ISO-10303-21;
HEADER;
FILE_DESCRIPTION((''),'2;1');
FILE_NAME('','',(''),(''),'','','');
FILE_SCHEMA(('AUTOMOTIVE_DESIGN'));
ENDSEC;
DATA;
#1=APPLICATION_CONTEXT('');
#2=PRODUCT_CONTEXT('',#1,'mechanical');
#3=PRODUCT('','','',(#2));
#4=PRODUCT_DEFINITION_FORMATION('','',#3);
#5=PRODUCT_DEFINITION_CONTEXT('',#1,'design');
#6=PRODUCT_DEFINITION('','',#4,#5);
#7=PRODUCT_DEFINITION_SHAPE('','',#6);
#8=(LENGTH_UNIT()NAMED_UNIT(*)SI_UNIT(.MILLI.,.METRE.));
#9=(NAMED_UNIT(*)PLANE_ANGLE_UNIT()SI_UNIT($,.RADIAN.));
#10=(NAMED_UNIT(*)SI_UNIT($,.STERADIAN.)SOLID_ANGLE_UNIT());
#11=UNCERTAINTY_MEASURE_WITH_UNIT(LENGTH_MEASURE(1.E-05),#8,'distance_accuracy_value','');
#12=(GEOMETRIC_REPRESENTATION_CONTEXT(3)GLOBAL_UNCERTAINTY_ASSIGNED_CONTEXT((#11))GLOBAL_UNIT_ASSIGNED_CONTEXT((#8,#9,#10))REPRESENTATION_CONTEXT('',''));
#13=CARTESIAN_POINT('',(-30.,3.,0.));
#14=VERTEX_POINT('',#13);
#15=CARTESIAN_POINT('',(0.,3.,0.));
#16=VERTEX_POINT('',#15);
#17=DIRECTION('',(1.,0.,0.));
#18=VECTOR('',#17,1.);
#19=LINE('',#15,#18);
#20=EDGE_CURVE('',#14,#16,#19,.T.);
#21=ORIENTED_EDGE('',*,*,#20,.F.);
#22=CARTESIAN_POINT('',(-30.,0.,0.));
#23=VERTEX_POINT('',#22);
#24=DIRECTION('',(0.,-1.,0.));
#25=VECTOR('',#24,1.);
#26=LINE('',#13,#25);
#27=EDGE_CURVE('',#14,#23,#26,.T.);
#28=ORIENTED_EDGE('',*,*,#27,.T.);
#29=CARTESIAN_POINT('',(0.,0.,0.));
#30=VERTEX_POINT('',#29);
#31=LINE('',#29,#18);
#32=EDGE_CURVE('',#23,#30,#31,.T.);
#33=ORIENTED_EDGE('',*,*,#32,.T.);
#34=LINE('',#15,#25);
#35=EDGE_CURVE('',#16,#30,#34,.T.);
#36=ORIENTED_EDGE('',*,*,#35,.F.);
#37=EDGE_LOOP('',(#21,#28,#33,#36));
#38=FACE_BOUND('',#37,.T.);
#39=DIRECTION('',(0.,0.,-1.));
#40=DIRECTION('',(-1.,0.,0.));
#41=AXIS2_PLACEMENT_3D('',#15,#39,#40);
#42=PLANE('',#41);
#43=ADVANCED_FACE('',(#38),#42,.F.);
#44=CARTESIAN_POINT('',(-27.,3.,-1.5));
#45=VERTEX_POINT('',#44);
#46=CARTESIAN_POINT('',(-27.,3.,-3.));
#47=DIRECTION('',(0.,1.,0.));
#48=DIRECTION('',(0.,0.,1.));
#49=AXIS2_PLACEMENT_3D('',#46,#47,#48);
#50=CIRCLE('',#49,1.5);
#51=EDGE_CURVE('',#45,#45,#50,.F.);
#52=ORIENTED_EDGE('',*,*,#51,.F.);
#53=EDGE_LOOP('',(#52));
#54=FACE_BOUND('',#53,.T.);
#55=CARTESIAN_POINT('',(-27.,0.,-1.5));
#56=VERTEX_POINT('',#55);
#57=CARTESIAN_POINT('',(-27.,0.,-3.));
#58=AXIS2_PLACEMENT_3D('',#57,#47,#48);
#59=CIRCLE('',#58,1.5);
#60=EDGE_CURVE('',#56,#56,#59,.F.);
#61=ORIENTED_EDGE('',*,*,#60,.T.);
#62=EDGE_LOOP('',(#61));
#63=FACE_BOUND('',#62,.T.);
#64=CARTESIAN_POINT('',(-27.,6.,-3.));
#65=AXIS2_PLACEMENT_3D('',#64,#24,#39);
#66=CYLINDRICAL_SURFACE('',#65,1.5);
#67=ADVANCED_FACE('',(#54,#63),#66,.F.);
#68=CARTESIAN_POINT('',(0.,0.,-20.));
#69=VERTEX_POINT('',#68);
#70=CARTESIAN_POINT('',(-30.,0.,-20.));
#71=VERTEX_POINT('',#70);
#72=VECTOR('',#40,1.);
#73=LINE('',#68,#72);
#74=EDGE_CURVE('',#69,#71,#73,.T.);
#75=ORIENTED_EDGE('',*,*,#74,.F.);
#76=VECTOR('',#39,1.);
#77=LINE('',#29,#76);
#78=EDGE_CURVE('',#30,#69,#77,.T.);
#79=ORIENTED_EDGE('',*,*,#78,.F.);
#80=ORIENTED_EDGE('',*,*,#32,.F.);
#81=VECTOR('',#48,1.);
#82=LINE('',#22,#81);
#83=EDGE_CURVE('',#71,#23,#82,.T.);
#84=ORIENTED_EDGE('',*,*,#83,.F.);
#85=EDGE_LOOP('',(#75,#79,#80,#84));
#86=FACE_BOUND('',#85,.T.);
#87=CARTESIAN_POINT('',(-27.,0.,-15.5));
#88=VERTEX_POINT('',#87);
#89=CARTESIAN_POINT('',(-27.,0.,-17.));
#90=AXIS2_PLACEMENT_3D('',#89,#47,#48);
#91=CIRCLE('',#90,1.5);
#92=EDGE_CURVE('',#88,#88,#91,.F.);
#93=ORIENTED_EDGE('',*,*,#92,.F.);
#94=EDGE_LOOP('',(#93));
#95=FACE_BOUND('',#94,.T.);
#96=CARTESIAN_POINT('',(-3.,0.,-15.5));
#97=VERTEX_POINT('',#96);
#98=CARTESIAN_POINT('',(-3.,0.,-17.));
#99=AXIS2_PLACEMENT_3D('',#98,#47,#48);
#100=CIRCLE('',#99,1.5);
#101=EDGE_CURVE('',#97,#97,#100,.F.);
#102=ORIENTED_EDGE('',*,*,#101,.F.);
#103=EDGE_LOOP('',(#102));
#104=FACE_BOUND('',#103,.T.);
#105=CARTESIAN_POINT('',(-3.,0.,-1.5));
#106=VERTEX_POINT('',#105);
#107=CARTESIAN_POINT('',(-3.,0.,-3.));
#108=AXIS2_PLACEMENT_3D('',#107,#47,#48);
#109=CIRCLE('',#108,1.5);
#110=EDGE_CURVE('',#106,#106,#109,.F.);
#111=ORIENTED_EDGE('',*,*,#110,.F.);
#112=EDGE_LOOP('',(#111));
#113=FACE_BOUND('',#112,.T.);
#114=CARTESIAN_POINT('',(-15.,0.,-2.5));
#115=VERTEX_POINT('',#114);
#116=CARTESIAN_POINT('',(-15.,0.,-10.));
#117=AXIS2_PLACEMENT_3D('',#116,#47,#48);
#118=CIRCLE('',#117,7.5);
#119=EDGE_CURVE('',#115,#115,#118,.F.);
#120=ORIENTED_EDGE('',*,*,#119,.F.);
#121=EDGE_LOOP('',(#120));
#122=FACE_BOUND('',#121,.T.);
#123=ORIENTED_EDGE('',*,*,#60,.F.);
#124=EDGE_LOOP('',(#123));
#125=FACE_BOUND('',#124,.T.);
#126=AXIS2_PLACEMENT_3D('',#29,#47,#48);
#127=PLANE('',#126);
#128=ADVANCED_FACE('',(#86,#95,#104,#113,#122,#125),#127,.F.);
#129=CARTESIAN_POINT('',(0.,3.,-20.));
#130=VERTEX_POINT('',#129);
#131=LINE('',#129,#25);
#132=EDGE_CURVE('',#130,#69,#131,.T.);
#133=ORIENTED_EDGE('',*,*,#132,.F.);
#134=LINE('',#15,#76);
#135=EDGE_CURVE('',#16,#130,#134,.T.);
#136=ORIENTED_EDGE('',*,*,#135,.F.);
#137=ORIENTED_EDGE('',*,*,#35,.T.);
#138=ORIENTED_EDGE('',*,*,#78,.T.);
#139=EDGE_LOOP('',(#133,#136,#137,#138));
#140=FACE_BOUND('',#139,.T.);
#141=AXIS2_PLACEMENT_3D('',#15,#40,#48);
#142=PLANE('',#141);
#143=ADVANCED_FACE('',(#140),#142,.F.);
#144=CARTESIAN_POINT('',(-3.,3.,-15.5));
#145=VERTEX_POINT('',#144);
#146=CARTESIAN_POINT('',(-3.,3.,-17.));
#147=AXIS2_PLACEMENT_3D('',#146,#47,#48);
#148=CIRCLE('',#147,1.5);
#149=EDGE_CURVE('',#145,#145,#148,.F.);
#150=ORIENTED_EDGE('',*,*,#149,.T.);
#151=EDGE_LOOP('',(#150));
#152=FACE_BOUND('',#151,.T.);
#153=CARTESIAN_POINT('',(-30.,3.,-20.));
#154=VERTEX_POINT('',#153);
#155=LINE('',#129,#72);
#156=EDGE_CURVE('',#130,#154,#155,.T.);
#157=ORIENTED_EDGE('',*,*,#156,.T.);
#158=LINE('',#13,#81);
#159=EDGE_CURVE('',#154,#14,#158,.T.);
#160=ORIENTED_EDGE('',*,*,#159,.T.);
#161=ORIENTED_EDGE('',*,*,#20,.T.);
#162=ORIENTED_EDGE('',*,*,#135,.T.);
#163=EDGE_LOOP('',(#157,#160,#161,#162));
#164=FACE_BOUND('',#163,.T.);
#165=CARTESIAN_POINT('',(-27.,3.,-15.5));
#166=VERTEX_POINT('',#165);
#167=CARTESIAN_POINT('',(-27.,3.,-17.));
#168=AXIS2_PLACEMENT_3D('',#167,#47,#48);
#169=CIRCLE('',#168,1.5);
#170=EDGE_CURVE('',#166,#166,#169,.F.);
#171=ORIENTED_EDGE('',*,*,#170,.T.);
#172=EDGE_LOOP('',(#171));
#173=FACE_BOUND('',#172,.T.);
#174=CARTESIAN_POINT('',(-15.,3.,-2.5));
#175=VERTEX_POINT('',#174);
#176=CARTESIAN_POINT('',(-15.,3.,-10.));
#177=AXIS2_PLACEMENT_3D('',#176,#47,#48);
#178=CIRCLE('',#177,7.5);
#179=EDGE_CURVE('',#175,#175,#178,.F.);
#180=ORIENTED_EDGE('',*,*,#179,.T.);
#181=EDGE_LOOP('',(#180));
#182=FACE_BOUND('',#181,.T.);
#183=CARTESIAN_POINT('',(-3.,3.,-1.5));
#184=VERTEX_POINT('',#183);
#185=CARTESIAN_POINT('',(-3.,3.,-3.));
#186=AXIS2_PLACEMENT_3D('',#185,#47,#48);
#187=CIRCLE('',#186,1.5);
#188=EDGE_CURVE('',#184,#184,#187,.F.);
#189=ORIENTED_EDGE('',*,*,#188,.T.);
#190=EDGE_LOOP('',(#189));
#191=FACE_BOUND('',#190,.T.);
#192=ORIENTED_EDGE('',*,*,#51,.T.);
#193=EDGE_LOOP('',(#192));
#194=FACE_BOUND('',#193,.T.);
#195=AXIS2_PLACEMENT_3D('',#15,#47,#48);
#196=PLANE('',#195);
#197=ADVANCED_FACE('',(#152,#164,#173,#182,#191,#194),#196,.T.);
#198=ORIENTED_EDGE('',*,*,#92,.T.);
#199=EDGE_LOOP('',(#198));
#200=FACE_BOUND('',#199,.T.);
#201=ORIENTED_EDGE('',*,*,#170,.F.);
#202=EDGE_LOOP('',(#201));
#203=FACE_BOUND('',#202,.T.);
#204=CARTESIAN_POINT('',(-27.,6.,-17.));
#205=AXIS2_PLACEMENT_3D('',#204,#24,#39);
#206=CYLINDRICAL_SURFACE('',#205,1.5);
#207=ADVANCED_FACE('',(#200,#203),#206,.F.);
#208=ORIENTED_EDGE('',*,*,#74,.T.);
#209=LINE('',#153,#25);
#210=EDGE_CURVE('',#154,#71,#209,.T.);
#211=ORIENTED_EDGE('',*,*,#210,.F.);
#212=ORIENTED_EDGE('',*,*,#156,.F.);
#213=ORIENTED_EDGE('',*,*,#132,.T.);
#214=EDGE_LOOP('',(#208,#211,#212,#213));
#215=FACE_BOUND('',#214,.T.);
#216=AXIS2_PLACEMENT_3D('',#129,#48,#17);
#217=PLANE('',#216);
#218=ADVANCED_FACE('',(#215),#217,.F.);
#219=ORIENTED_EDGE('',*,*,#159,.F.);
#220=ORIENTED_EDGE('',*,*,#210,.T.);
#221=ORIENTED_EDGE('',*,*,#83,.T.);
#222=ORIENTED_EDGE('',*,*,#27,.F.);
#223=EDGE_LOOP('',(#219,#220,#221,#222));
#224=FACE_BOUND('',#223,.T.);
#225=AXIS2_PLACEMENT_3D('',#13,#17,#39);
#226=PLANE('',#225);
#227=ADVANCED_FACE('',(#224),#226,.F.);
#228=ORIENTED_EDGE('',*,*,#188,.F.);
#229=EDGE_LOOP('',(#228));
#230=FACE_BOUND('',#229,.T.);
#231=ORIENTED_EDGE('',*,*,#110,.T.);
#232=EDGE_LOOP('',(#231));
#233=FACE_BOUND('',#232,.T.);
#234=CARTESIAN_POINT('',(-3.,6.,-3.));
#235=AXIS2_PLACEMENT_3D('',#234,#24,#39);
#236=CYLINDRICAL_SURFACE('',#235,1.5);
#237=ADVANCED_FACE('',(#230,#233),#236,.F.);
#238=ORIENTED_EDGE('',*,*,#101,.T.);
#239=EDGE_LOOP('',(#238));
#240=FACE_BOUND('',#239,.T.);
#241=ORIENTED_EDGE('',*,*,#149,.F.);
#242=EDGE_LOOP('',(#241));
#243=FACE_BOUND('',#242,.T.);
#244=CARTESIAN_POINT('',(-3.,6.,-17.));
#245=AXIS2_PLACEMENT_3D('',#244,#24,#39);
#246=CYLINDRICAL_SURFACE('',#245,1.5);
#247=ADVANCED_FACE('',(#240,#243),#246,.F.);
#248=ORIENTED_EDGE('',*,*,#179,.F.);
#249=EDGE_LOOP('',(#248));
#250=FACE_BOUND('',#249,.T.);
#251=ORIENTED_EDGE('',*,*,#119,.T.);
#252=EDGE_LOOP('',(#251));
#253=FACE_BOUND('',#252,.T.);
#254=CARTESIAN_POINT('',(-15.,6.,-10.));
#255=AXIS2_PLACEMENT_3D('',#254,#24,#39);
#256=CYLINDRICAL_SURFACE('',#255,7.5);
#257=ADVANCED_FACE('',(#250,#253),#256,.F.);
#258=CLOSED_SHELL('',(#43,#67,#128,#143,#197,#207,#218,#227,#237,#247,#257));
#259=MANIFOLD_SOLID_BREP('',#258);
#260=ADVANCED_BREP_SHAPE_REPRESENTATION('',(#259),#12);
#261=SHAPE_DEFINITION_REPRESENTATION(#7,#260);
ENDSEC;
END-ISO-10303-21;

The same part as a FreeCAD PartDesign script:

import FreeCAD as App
import Part
import Sketcher
from FreeCAD import Vector
Q = App.Units.Quantity

doc = App.newDocument("Part")
body = doc.addObject("PartDesign::Body", "Body")

sketch1 = body.newObject("Sketcher::SketchObject", "Sketch")
sketch1.AttachmentSupport = (doc.getObject("XZ_Plane"), [""])
sketch1.MapMode = "FlatFace"
sketch1.addGeometry([
    Part.LineSegment(Vector(-30, -20, 0), Vector(-30, 0, 0)),
    Part.LineSegment(Vector(-30, 0, 0), Vector(0, 0, 0)),
    Part.LineSegment(Vector(0, 0, 0), Vector(0, -20, 0)),
    Part.LineSegment(Vector(0, -20, 0), Vector(-30, -20, 0)),
], False)
sketch1.addConstraint([
    Sketcher.Constraint("Coincident", 0, 2, 1, 1),
    Sketcher.Constraint("Coincident", 1, 2, 2, 1),
    Sketcher.Constraint("Coincident", 2, 2, 3, 1),
    Sketcher.Constraint("Coincident", 3, 2, 0, 1),
    Sketcher.Constraint("Vertical", 0),
    Sketcher.Constraint("Horizontal", 1),
    Sketcher.Constraint("Vertical", 2),
    Sketcher.Constraint("Horizontal", 3),
    Sketcher.Constraint("Coincident", 1, 2, -1, 1),
    Sketcher.Constraint("DistanceX", 1, 1, 1, 2, Q("30 mm")),
    Sketcher.Constraint("DistanceY", 0, 1, 0, 2, Q("20 mm")),
])
pad1 = body.newObject("PartDesign::Pad", "Pad")
pad1.Profile = sketch1
pad1.Length = 3
pad1.Reversed = True

sketch2 = body.newObject("Sketcher::SketchObject", "Sketch001")
sketch2.AttachmentSupport = (doc.getObject("XZ_Plane"), [""])
sketch2.MapMode = "FlatFace"
sketch2.AttachmentOffset = App.Placement(Vector(0, 0, -3), App.Rotation())
sketch2.addGeometry([
    Part.Circle(Vector(-27, -17, 0), Vector(0, 0, 1), 1.5),
    Part.Circle(Vector(-27, -3, 0), Vector(0, 0, 1), 1.5),
    Part.Circle(Vector(-3, -3, 0), Vector(0, 0, 1), 1.5),
    Part.Circle(Vector(-3, -17, 0), Vector(0, 0, 1), 1.5),
    Part.Circle(Vector(-15, -10, 0), Vector(0, 0, 1), 7.5),
], False)
sketch2.addConstraint([
    Sketcher.Constraint("Equal", 0, 1),
    Sketcher.Constraint("Equal", 1, 2),
    Sketcher.Constraint("Equal", 2, 3),
    Sketcher.Constraint("Horizontal", 1, 3, 2, 3),
    Sketcher.Constraint("Horizontal", 0, 3, 3, 3),
    Sketcher.Constraint("Vertical", 0, 3, 1, 3),
    Sketcher.Constraint("Vertical", 2, 3, 3, 3),
    Sketcher.Constraint("Diameter", 0, Q("3 mm")),
    Sketcher.Constraint("Diameter", 4, Q("15 mm")),
    Sketcher.Constraint("DistanceX", 0, 3, -1, 1, Q("27 mm")),
    Sketcher.Constraint("DistanceY", 0, 3, -1, 1, Q("17 mm")),
    Sketcher.Constraint("DistanceY", 1, 3, -1, 1, Q("3 mm")),
    Sketcher.Constraint("DistanceX", 2, 3, -1, 1, Q("3 mm")),
    Sketcher.Constraint("DistanceX", 4, 3, -1, 1, Q("15 mm")),
    Sketcher.Constraint("DistanceY", 4, 3, -1, 1, Q("10 mm")),
])
pocket1 = body.newObject("PartDesign::Pocket", "Pocket")
pocket1.Profile = sketch2
pocket1.Type = "ThroughAll"
pocket1.Midplane = True

doc.recompute()
